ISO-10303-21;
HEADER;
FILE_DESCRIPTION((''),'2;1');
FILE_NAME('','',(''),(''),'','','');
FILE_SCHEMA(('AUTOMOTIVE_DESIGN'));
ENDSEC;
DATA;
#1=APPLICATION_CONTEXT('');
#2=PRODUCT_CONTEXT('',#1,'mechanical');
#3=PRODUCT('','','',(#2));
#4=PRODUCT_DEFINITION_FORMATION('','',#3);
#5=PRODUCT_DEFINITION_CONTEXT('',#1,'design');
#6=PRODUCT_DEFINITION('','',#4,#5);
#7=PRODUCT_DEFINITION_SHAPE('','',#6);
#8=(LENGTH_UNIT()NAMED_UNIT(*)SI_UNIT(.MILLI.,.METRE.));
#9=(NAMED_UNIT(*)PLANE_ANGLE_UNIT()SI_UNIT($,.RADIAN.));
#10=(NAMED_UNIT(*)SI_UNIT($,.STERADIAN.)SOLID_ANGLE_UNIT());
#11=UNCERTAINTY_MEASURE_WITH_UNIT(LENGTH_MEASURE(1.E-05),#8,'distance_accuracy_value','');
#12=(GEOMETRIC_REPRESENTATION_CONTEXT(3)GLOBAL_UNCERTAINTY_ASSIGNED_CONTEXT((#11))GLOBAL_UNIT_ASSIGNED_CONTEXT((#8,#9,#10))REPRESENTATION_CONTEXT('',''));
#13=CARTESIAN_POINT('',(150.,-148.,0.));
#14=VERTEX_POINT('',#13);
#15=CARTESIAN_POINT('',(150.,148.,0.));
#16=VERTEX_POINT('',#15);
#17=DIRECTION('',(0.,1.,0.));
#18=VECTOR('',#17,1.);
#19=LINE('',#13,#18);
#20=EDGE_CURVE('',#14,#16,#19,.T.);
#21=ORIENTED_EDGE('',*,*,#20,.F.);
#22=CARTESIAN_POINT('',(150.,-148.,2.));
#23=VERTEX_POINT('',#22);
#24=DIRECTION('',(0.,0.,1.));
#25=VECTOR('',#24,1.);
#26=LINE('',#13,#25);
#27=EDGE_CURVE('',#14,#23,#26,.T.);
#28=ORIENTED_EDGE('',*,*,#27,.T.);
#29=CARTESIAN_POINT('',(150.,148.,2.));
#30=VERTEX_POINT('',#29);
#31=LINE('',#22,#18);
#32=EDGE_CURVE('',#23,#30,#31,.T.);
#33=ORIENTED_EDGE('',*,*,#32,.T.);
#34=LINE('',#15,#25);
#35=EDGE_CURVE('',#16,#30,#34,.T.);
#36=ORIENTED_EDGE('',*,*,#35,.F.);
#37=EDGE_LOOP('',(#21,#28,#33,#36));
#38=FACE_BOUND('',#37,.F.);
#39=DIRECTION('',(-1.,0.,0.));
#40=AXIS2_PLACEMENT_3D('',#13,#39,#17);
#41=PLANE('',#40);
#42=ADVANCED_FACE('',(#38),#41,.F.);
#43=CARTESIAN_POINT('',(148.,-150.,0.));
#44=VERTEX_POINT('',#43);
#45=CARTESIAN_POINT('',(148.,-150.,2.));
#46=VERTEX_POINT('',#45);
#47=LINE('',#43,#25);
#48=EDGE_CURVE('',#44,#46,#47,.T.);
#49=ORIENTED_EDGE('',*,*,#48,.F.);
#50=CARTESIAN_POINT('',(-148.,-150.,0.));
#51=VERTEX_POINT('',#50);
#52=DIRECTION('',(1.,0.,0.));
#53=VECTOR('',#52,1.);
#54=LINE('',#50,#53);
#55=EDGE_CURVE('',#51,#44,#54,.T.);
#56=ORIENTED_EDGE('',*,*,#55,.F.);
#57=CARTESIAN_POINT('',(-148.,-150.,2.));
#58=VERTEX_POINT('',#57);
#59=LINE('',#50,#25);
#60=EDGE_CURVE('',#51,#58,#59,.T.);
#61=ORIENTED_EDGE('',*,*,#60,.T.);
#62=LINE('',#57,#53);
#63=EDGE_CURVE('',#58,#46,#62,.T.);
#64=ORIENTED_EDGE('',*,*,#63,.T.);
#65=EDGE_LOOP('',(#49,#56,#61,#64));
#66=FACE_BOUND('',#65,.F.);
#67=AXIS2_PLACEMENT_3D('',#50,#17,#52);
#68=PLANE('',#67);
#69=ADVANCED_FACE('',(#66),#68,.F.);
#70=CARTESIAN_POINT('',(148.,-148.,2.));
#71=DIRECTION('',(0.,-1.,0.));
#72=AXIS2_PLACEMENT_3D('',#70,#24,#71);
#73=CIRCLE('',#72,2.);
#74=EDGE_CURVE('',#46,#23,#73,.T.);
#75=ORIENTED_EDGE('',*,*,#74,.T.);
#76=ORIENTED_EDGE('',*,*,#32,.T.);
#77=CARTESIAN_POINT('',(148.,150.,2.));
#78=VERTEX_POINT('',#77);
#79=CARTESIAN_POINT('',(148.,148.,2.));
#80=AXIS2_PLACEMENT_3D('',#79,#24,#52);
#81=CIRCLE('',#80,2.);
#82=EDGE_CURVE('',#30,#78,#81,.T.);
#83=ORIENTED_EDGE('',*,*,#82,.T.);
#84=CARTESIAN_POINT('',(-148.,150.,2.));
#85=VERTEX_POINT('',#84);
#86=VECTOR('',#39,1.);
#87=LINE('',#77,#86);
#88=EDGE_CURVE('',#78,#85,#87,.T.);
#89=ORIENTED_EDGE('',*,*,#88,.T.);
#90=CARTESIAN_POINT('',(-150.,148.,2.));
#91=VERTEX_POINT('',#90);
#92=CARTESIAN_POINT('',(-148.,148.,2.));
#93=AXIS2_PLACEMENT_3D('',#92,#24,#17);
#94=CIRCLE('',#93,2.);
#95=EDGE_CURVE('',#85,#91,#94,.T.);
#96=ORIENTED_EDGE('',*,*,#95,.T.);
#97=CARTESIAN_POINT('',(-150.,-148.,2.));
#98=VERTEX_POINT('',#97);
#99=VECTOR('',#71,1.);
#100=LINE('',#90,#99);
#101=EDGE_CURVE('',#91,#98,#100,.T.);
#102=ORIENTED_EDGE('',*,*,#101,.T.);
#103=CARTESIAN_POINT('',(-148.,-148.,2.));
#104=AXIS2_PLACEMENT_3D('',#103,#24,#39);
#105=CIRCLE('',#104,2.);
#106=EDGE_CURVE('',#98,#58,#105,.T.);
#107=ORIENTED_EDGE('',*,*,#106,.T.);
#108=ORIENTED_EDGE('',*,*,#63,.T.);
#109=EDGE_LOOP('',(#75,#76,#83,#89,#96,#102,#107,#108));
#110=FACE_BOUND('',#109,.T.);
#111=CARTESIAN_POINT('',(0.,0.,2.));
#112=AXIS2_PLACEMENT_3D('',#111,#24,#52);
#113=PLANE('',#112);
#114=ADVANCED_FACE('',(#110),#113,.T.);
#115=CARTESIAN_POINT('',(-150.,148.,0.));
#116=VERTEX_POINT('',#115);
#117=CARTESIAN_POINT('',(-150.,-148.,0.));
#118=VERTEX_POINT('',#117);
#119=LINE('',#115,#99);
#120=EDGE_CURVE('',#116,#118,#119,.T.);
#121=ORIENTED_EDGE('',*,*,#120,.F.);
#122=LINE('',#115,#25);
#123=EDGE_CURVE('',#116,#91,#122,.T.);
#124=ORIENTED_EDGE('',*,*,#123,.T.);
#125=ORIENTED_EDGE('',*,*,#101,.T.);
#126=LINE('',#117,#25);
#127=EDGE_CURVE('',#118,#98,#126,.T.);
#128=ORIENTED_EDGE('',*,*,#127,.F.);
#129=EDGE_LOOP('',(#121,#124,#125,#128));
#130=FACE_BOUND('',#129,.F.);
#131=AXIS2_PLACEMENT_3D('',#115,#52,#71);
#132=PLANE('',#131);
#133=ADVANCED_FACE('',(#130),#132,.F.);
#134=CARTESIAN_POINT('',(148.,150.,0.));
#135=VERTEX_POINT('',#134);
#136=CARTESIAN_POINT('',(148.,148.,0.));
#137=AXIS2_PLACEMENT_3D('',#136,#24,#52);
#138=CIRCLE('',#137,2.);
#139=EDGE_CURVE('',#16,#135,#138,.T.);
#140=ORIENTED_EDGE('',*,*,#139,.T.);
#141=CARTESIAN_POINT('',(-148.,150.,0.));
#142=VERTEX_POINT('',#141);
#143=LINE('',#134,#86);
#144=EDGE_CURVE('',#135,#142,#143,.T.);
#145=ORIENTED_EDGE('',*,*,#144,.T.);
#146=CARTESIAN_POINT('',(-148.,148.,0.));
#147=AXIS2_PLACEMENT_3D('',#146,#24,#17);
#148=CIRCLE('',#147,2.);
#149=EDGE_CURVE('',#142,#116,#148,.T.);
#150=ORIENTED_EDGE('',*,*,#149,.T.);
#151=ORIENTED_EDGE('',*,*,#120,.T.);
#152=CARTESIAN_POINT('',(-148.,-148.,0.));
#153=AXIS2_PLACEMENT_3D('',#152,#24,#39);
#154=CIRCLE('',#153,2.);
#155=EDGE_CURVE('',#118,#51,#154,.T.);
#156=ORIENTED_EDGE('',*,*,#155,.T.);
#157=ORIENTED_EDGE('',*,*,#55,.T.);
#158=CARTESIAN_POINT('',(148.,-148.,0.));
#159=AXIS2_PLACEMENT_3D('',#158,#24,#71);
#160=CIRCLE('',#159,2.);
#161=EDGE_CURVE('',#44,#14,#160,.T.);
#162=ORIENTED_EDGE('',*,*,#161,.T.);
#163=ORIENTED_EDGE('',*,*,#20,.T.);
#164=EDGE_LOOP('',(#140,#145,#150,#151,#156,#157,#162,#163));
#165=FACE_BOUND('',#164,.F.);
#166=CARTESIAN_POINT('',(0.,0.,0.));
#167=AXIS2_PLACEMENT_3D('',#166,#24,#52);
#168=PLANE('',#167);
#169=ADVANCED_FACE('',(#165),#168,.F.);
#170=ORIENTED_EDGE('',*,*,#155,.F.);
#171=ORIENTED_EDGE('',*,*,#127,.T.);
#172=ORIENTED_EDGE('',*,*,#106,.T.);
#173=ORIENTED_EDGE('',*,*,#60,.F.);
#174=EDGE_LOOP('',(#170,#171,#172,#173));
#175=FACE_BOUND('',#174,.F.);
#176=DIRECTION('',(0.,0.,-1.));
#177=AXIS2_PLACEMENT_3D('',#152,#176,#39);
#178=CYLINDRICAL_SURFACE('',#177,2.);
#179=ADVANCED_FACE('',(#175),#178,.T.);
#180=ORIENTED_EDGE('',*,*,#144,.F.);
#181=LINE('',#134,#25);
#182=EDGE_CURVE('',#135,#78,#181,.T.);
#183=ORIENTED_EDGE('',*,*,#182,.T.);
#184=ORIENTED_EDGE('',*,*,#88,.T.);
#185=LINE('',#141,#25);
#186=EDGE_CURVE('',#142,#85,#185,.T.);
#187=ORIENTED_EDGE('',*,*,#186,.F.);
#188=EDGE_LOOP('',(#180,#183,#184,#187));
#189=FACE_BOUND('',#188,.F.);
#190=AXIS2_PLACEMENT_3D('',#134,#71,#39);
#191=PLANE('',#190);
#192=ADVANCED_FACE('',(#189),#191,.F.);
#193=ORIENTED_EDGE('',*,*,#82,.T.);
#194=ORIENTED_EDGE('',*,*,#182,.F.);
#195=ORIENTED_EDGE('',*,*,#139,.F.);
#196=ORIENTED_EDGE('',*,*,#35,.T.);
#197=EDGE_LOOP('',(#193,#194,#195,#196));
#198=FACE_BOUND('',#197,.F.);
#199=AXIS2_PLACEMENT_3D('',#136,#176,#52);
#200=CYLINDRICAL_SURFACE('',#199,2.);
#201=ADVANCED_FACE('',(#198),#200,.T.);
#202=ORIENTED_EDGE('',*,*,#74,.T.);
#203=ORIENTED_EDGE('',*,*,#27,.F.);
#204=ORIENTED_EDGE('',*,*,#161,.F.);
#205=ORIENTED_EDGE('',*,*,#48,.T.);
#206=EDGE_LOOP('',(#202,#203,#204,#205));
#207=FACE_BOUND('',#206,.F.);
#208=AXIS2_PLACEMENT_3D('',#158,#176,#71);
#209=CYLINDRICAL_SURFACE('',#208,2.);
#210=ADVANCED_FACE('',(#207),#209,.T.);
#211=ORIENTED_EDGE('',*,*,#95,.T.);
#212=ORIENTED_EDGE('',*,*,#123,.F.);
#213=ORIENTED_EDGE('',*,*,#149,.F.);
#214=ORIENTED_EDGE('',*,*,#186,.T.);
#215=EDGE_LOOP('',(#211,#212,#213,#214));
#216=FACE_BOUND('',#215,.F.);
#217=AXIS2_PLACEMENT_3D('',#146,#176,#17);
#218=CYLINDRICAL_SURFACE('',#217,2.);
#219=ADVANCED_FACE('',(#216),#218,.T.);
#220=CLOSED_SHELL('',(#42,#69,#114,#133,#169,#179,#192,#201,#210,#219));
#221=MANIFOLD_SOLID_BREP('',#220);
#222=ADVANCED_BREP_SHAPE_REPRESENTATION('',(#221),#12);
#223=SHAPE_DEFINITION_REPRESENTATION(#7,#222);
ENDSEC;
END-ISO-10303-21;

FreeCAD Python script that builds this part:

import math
import FreeCAD as App
import Part
import Sketcher

doc = App.newDocument("Part")
body = doc.addObject("PartDesign::Body", "Body")

# Sketch on XY plane
sketch1 = body.newObject("Sketcher::SketchObject", "Sketch")
sketch1.AttachmentSupport = (doc.getObject("XY_Plane"), [""])
sketch1.MapMode = "FlatFace"
sketch1.addGeometry(Part.ArcOfCircle(Part.Circle(App.Vector(-148, -148, 0), App.Vector(0, 0, 1), 2), math.radians(180), math.radians(270)), False)
sketch1.addGeometry(Part.LineSegment(App.Vector(-148, -150, 0), App.Vector(148, -150, 0)), False)
sketch1.addGeometry(Part.ArcOfCircle(Part.Circle(App.Vector(148, -148, 0), App.Vector(0, 0, 1), 2), math.radians(-90), math.radians(0)), False)
sketch1.addGeometry(Part.LineSegment(App.Vector(150, -148, 0), App.Vector(150, 148, 0)), False)
sketch1.addGeometry(Part.ArcOfCircle(Part.Circle(App.Vector(148, 148, 0), App.Vector(0, 0, 1), 2), math.radians(0), math.radians(90)), False)
sketch1.addGeometry(Part.LineSegment(App.Vector(148, 150, 0), App.Vector(-148, 150, 0)), False)
sketch1.addGeometry(Part.ArcOfCircle(Part.Circle(App.Vector(-148, 148, 0), App.Vector(0, 0, 1), 2), math.radians(90), math.radians(180)), False)
sketch1.addGeometry(Part.LineSegment(App.Vector(-150, 148, 0), App.Vector(-150, -148, 0)), False)
sketch1.addConstraint(Sketcher.Constraint("Tangent", 0, 2, 1, 1))
sketch1.addConstraint(Sketcher.Constraint("Tangent", 1, 2, 2, 1))
sketch1.addConstraint(Sketcher.Constraint("Tangent", 2, 2, 3, 1))
sketch1.addConstraint(Sketcher.Constraint("Tangent", 3, 2, 4, 1))
sketch1.addConstraint(Sketcher.Constraint("Tangent", 4, 2, 5, 1))
sketch1.addConstraint(Sketcher.Constraint("Tangent", 5, 2, 6, 1))
sketch1.addConstraint(Sketcher.Constraint("Tangent", 6, 2, 7, 1))
sketch1.addConstraint(Sketcher.Constraint("Tangent", 7, 2, 0, 1))
sketch1.addConstraint(Sketcher.Constraint("Horizontal", 1))
sketch1.addConstraint(Sketcher.Constraint("Vertical", 3))
sketch1.addConstraint(Sketcher.Constraint("Horizontal", 5))
sketch1.addConstraint(Sketcher.Constraint("Vertical", 7))
sketch1.addConstraint(Sketcher.Constraint("Equal", 0, 2))
sketch1.addConstraint(Sketcher.Constraint("Equal", 2, 4))
sketch1.addConstraint(Sketcher.Constraint("Equal", 4, 6))
sketch1.addConstraint(Sketcher.Constraint("Symmetric", 0, 3, 4, 3, -1, 1))
sketch1.addConstraint(Sketcher.Constraint("Equal", 5, 3))
sketch1.addConstraint(Sketcher.Constraint("Radius", 0, 2.0))
sketch1.addConstraint(Sketcher.Constraint("DistanceX", 1, 1, 1, 2, 296.0))
pad1 = body.newObject("PartDesign::Pad", "Pad")
pad1.Profile = sketch1
pad1.Length = 2

doc.recompute()
